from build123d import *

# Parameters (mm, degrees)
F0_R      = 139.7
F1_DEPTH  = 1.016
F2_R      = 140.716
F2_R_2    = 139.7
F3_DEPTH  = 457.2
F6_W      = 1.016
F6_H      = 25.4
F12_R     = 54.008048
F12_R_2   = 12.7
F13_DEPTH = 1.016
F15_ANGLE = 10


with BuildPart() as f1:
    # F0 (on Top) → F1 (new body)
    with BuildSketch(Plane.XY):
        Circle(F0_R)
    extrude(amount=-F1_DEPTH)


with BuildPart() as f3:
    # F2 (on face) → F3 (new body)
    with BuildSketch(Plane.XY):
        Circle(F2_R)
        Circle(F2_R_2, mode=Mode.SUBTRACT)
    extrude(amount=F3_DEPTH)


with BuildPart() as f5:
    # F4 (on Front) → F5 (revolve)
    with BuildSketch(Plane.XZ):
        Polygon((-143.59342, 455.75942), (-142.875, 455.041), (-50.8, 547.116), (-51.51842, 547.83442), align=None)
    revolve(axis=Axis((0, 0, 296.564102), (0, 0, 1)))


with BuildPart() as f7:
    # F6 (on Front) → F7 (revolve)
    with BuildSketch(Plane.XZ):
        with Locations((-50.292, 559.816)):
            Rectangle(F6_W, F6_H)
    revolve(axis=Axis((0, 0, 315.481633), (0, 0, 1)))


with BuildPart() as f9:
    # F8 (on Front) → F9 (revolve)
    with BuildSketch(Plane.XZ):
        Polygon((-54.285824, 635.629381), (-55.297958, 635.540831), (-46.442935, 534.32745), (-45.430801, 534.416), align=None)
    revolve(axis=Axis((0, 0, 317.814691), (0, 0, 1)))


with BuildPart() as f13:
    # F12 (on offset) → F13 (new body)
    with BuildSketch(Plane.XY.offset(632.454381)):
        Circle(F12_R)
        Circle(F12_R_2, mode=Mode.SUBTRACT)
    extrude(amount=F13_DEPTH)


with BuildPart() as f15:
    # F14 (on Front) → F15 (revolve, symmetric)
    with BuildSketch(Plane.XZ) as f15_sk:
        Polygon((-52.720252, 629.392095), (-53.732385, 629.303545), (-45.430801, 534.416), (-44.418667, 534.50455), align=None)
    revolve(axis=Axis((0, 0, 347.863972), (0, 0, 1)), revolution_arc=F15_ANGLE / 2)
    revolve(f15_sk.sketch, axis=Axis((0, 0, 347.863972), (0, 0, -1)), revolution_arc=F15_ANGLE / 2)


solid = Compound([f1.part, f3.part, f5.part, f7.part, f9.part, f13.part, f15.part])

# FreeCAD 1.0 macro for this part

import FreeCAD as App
import Part
import Sketcher
from FreeCAD import Vector
Q = App.Units.Quantity


def add_polygon(sketch, points):
    """Adds a closed chain of lines whose ends are joined by coincident constraints."""
    first, n = sketch.GeometryCount, len(points)
    for a, b in zip(points, points[1:] + points[:1]):
        sketch.addGeometry(Part.LineSegment(App.Vector(*a, 0), App.Vector(*b, 0)), False)
    for i in range(n):
        sketch.addConstraint(Sketcher.Constraint("Coincident", first + i, 2, first + (i + 1) % n, 1))

doc = App.newDocument("Part")
body = doc.addObject("PartDesign::Body", "Body")

# Sketch on XY plane
sketch1 = body.newObject("Sketcher::SketchObject", "Sketch")
sketch1.AttachmentSupport = (doc.getObject("XY_Plane"), [""])
sketch1.MapMode = "FlatFace"
sketch1.addGeometry(Part.Circle(Vector(0, 0, 0), Vector(0, 0, 1), 140), False)
sketch1.addConstraint([
    Sketcher.Constraint("Coincident", 0, 3, -1, 1),
    Sketcher.Constraint("Diameter", 0, Q("11 in")),
])
pad1 = body.newObject("PartDesign::Pad", "Pad")
pad1.Profile = sketch1
pad1.Length = Q("0.04 in")
pad1.Reversed = True
body2 = doc.addObject("PartDesign::Body", "Body001")

# Sketch on XY plane
sketch2 = body2.newObject("Sketcher::SketchObject", "Sketch001")
sketch2.AttachmentSupport = (doc.getObject("XY_Plane001"), [""])
sketch2.MapMode = "FlatFace"
sketch2.addGeometry([
    Part.Circle(Vector(0, 0, 0), Vector(0, 0, 1), 141),
    Part.Circle(Vector(0, 0, 0), Vector(0, 0, 1), 140),
], False)
sketch2.addConstraint([
    Sketcher.Constraint("Coincident", 0, 3, -1, 1),
    Sketcher.Constraint("Coincident", 1, 3, -1, 1),
    Sketcher.Constraint("Diameter", 1, Q("11 in")),
    Sketcher.Constraint("Diameter", 0, Q("11.08 in")),
])
pad2 = body2.newObject("PartDesign::Pad", "Pad001")
pad2.Profile = sketch2
pad2.Length = Q("18 in")
body3 = doc.addObject("PartDesign::Body", "Body002")

# Sketch on XZ plane
sketch3 = body3.newObject("Sketcher::SketchObject", "Sketch002")
sketch3.AttachmentSupport = (doc.getObject("XZ_Plane002"), [""])
sketch3.MapMode = "FlatFace"
add_polygon(sketch3, [(-143.6, 455.8), (-142.9, 455), (-50.8, 547.1), (-51.5, 547.8)])  # lines 0-3
sketch3.addConstraint([
    Sketcher.Constraint("Perpendicular", 0, 1),
    Sketcher.Constraint("Perpendicular", 1, 2),
    Sketcher.Constraint("Perpendicular", 2, 3),
    Sketcher.Constraint("DistanceX", 1, 2, -1, 1, Q("2 in")),
    Sketcher.Constraint("Angle", 0, Q("-45 deg")),
    Sketcher.Constraint("Distance", 0, Q("0.04 in")),
    Sketcher.Constraint("DistanceY", -1, 1, 1, 2, Q("21.54 in")),
    Sketcher.Constraint("DistanceX", 0, 2, -1, 1, Q("5.625 in")),
])
revolution = body3.newObject("PartDesign::Revolution", "Revolution")
revolution.Profile = sketch3
revolution.ReferenceAxis = (sketch3, ["V_Axis"])
revolution.Angle = 360
body4 = doc.addObject("PartDesign::Body", "Body003")

# Sketch on XZ plane
sketch4 = body4.newObject("Sketcher::SketchObject", "Sketch003")
sketch4.AttachmentSupport = (doc.getObject("XZ_Plane003"), [""])
sketch4.MapMode = "FlatFace"
add_polygon(sketch4, [(-50.8, 572.5), (-50.8, 547.1), (-49.8, 547.1), (-49.8, 572.5)])  # lines 0-3
sketch4.addConstraint([
    Sketcher.Constraint("Vertical", 0),
    Sketcher.Constraint("Horizontal", 1),
    Sketcher.Constraint("Vertical", 2),
    Sketcher.Constraint("Horizontal", 3),
    Sketcher.Constraint("DistanceY", 0, 2, 0, 1, Q("1 in")),
    Sketcher.Constraint("DistanceX", 0, 2, -1, 1, Q("2 in")),
    Sketcher.Constraint("DistanceX", 1, 1, 1, 2, Q("0.04 in")),
    Sketcher.Constraint("DistanceY", -1, 1, 0, 2, Q("21.54 in")),
])
revolution2 = body4.newObject("PartDesign::Revolution", "Revolution001")
revolution2.Profile = sketch4
revolution2.ReferenceAxis = (sketch4, ["V_Axis"])
revolution2.Angle = 360
body5 = doc.addObject("PartDesign::Body", "Body004")

# Sketch on XZ plane
sketch5 = body5.newObject("Sketcher::SketchObject", "Sketch004")
sketch5.AttachmentSupport = (doc.getObject("XZ_Plane004"), [""])
sketch5.MapMode = "FlatFace"
add_polygon(sketch5, [(-54.285824, 635.629381), (-55.297958, 635.540831), (-46.442935, 534.32745), (-45.430801, 534.416)])  # lines 0-3
sketch5.addConstraint([
    Sketcher.Constraint("Distance", 1, Q("4 in")),
    Sketcher.Constraint("Distance", 3, Q("4 in")),
    Sketcher.Constraint("Distance", 0, Q("0.04 in")),
    Sketcher.Constraint("Distance", 2, Q("0.04 in")),
    Sketcher.Constraint("DistanceY", -1, 1, 2, 2, Q("21.04 in")),
    Sketcher.Constraint("DistanceX", 2, 2, -1, 1, 45.430801),
    Sketcher.Constraint("DistanceY", -1, 1, 0, 2, 635.540831),
    Sketcher.Constraint("DistanceY", -1, 1, 1, 2, 534.32745),
])
revolution3 = body5.newObject("PartDesign::Revolution", "Revolution002")
revolution3.Profile = sketch5
revolution3.ReferenceAxis = (sketch5, ["V_Axis"])
revolution3.Angle = 360
body6 = doc.addObject("PartDesign::Body", "Body005")

# Sketch on XY plane
sketch6 = body6.newObject("Sketcher::SketchObject", "Sketch005")
sketch6.AttachmentSupport = (doc.getObject("XY_Plane005"), [""])
sketch6.MapMode = "FlatFace"
sketch6.AttachmentOffset = App.Placement(Vector(0, 0, 632.454381), App.Rotation())
sketch6.addGeometry([
    Part.Circle(Vector(0, 0, 0), Vector(0, 0, 1), 54),
    Part.Circle(Vector(0, 0, 0), Vector(0, 0, 1), 13),
], False)
sketch6.addConstraint([
    Sketcher.Constraint("Coincident", 0, 3, -1, 1),
    Sketcher.Constraint("Coincident", 1, 3, -1, 1),
    Sketcher.Constraint("Diameter", 1, Q("1 in")),
    Sketcher.Constraint("Diameter", 0, 108.016096),
])
pad3 = body6.newObject("PartDesign::Pad", "Pad002")
pad3.Profile = sketch6
pad3.Length = Q("0.04 in")
body7 = doc.addObject("PartDesign::Body", "Body006")

# Sketch on XZ plane
sketch7 = body7.newObject("Sketcher::SketchObject", "Sketch006")
sketch7.AttachmentSupport = (doc.getObject("XZ_Plane006"), [""])
sketch7.MapMode = "FlatFace"
add_polygon(sketch7, [(-52.7, 629.4), (-53.7, 629.3), (-45.4, 534.4), (-44.4, 534.5)])  # lines 0-3
sketch7.addConstraint([
    Sketcher.Constraint("Perpendicular", 0, 1),
    Sketcher.Constraint("Perpendicular", 1, 2),
    Sketcher.Constraint("Perpendicular", 2, 3),
    Sketcher.Constraint("Angle", 0, Q("-175.000009 deg")),
    Sketcher.Constraint("Distance", 0, Q("0.04 in")),
    Sketcher.Constraint("Distance", 1, Q("3.75 in")),
    Sketcher.Constraint("DistanceY", -1, 1, 1, 2, Q("21.04 in")),
    Sketcher.Constraint("DistanceX", 1, 2, -1, 1, 45.430801),
])
revolution4 = body7.newObject("PartDesign::Revolution", "Revolution003")
revolution4.Profile = sketch7
revolution4.ReferenceAxis = (sketch7, ["V_Axis"])
revolution4.Angle = 5

# Sketch on XZ plane
sketch8 = body7.newObject("Sketcher::SketchObject", "Sketch007")
sketch8.AttachmentSupport = (doc.getObject("XZ_Plane006"), [""])
sketch8.MapMode = "FlatFace"
add_polygon(sketch8, [(-52.7, 629.4), (-53.7, 629.3), (-45.4, 534.4), (-44.4, 534.5)])  # lines 0-3
sketch8.addConstraint([
    Sketcher.Constraint("Perpendicular", 0, 1),
    Sketcher.Constraint("Perpendicular", 1, 2),
    Sketcher.Constraint("Perpendicular", 2, 3),
    Sketcher.Constraint("Angle", 0, Q("-175.000009 deg")),
    Sketcher.Constraint("Distance", 0, Q("0.04 in")),
    Sketcher.Constraint("Distance", 1, Q("3.75 in")),
    Sketcher.Constraint("DistanceY", -1, 1, 1, 2, Q("21.04 in")),
    Sketcher.Constraint("DistanceX", 1, 2, -1, 1, 45.430801),
])
revolution5 = body7.newObject("PartDesign::Revolution", "Revolution004")
revolution5.Profile = sketch8
revolution5.ReferenceAxis = (sketch8, ["V_Axis"])
revolution5.Angle = 5
revolution5.Reversed = True

doc.recompute()
